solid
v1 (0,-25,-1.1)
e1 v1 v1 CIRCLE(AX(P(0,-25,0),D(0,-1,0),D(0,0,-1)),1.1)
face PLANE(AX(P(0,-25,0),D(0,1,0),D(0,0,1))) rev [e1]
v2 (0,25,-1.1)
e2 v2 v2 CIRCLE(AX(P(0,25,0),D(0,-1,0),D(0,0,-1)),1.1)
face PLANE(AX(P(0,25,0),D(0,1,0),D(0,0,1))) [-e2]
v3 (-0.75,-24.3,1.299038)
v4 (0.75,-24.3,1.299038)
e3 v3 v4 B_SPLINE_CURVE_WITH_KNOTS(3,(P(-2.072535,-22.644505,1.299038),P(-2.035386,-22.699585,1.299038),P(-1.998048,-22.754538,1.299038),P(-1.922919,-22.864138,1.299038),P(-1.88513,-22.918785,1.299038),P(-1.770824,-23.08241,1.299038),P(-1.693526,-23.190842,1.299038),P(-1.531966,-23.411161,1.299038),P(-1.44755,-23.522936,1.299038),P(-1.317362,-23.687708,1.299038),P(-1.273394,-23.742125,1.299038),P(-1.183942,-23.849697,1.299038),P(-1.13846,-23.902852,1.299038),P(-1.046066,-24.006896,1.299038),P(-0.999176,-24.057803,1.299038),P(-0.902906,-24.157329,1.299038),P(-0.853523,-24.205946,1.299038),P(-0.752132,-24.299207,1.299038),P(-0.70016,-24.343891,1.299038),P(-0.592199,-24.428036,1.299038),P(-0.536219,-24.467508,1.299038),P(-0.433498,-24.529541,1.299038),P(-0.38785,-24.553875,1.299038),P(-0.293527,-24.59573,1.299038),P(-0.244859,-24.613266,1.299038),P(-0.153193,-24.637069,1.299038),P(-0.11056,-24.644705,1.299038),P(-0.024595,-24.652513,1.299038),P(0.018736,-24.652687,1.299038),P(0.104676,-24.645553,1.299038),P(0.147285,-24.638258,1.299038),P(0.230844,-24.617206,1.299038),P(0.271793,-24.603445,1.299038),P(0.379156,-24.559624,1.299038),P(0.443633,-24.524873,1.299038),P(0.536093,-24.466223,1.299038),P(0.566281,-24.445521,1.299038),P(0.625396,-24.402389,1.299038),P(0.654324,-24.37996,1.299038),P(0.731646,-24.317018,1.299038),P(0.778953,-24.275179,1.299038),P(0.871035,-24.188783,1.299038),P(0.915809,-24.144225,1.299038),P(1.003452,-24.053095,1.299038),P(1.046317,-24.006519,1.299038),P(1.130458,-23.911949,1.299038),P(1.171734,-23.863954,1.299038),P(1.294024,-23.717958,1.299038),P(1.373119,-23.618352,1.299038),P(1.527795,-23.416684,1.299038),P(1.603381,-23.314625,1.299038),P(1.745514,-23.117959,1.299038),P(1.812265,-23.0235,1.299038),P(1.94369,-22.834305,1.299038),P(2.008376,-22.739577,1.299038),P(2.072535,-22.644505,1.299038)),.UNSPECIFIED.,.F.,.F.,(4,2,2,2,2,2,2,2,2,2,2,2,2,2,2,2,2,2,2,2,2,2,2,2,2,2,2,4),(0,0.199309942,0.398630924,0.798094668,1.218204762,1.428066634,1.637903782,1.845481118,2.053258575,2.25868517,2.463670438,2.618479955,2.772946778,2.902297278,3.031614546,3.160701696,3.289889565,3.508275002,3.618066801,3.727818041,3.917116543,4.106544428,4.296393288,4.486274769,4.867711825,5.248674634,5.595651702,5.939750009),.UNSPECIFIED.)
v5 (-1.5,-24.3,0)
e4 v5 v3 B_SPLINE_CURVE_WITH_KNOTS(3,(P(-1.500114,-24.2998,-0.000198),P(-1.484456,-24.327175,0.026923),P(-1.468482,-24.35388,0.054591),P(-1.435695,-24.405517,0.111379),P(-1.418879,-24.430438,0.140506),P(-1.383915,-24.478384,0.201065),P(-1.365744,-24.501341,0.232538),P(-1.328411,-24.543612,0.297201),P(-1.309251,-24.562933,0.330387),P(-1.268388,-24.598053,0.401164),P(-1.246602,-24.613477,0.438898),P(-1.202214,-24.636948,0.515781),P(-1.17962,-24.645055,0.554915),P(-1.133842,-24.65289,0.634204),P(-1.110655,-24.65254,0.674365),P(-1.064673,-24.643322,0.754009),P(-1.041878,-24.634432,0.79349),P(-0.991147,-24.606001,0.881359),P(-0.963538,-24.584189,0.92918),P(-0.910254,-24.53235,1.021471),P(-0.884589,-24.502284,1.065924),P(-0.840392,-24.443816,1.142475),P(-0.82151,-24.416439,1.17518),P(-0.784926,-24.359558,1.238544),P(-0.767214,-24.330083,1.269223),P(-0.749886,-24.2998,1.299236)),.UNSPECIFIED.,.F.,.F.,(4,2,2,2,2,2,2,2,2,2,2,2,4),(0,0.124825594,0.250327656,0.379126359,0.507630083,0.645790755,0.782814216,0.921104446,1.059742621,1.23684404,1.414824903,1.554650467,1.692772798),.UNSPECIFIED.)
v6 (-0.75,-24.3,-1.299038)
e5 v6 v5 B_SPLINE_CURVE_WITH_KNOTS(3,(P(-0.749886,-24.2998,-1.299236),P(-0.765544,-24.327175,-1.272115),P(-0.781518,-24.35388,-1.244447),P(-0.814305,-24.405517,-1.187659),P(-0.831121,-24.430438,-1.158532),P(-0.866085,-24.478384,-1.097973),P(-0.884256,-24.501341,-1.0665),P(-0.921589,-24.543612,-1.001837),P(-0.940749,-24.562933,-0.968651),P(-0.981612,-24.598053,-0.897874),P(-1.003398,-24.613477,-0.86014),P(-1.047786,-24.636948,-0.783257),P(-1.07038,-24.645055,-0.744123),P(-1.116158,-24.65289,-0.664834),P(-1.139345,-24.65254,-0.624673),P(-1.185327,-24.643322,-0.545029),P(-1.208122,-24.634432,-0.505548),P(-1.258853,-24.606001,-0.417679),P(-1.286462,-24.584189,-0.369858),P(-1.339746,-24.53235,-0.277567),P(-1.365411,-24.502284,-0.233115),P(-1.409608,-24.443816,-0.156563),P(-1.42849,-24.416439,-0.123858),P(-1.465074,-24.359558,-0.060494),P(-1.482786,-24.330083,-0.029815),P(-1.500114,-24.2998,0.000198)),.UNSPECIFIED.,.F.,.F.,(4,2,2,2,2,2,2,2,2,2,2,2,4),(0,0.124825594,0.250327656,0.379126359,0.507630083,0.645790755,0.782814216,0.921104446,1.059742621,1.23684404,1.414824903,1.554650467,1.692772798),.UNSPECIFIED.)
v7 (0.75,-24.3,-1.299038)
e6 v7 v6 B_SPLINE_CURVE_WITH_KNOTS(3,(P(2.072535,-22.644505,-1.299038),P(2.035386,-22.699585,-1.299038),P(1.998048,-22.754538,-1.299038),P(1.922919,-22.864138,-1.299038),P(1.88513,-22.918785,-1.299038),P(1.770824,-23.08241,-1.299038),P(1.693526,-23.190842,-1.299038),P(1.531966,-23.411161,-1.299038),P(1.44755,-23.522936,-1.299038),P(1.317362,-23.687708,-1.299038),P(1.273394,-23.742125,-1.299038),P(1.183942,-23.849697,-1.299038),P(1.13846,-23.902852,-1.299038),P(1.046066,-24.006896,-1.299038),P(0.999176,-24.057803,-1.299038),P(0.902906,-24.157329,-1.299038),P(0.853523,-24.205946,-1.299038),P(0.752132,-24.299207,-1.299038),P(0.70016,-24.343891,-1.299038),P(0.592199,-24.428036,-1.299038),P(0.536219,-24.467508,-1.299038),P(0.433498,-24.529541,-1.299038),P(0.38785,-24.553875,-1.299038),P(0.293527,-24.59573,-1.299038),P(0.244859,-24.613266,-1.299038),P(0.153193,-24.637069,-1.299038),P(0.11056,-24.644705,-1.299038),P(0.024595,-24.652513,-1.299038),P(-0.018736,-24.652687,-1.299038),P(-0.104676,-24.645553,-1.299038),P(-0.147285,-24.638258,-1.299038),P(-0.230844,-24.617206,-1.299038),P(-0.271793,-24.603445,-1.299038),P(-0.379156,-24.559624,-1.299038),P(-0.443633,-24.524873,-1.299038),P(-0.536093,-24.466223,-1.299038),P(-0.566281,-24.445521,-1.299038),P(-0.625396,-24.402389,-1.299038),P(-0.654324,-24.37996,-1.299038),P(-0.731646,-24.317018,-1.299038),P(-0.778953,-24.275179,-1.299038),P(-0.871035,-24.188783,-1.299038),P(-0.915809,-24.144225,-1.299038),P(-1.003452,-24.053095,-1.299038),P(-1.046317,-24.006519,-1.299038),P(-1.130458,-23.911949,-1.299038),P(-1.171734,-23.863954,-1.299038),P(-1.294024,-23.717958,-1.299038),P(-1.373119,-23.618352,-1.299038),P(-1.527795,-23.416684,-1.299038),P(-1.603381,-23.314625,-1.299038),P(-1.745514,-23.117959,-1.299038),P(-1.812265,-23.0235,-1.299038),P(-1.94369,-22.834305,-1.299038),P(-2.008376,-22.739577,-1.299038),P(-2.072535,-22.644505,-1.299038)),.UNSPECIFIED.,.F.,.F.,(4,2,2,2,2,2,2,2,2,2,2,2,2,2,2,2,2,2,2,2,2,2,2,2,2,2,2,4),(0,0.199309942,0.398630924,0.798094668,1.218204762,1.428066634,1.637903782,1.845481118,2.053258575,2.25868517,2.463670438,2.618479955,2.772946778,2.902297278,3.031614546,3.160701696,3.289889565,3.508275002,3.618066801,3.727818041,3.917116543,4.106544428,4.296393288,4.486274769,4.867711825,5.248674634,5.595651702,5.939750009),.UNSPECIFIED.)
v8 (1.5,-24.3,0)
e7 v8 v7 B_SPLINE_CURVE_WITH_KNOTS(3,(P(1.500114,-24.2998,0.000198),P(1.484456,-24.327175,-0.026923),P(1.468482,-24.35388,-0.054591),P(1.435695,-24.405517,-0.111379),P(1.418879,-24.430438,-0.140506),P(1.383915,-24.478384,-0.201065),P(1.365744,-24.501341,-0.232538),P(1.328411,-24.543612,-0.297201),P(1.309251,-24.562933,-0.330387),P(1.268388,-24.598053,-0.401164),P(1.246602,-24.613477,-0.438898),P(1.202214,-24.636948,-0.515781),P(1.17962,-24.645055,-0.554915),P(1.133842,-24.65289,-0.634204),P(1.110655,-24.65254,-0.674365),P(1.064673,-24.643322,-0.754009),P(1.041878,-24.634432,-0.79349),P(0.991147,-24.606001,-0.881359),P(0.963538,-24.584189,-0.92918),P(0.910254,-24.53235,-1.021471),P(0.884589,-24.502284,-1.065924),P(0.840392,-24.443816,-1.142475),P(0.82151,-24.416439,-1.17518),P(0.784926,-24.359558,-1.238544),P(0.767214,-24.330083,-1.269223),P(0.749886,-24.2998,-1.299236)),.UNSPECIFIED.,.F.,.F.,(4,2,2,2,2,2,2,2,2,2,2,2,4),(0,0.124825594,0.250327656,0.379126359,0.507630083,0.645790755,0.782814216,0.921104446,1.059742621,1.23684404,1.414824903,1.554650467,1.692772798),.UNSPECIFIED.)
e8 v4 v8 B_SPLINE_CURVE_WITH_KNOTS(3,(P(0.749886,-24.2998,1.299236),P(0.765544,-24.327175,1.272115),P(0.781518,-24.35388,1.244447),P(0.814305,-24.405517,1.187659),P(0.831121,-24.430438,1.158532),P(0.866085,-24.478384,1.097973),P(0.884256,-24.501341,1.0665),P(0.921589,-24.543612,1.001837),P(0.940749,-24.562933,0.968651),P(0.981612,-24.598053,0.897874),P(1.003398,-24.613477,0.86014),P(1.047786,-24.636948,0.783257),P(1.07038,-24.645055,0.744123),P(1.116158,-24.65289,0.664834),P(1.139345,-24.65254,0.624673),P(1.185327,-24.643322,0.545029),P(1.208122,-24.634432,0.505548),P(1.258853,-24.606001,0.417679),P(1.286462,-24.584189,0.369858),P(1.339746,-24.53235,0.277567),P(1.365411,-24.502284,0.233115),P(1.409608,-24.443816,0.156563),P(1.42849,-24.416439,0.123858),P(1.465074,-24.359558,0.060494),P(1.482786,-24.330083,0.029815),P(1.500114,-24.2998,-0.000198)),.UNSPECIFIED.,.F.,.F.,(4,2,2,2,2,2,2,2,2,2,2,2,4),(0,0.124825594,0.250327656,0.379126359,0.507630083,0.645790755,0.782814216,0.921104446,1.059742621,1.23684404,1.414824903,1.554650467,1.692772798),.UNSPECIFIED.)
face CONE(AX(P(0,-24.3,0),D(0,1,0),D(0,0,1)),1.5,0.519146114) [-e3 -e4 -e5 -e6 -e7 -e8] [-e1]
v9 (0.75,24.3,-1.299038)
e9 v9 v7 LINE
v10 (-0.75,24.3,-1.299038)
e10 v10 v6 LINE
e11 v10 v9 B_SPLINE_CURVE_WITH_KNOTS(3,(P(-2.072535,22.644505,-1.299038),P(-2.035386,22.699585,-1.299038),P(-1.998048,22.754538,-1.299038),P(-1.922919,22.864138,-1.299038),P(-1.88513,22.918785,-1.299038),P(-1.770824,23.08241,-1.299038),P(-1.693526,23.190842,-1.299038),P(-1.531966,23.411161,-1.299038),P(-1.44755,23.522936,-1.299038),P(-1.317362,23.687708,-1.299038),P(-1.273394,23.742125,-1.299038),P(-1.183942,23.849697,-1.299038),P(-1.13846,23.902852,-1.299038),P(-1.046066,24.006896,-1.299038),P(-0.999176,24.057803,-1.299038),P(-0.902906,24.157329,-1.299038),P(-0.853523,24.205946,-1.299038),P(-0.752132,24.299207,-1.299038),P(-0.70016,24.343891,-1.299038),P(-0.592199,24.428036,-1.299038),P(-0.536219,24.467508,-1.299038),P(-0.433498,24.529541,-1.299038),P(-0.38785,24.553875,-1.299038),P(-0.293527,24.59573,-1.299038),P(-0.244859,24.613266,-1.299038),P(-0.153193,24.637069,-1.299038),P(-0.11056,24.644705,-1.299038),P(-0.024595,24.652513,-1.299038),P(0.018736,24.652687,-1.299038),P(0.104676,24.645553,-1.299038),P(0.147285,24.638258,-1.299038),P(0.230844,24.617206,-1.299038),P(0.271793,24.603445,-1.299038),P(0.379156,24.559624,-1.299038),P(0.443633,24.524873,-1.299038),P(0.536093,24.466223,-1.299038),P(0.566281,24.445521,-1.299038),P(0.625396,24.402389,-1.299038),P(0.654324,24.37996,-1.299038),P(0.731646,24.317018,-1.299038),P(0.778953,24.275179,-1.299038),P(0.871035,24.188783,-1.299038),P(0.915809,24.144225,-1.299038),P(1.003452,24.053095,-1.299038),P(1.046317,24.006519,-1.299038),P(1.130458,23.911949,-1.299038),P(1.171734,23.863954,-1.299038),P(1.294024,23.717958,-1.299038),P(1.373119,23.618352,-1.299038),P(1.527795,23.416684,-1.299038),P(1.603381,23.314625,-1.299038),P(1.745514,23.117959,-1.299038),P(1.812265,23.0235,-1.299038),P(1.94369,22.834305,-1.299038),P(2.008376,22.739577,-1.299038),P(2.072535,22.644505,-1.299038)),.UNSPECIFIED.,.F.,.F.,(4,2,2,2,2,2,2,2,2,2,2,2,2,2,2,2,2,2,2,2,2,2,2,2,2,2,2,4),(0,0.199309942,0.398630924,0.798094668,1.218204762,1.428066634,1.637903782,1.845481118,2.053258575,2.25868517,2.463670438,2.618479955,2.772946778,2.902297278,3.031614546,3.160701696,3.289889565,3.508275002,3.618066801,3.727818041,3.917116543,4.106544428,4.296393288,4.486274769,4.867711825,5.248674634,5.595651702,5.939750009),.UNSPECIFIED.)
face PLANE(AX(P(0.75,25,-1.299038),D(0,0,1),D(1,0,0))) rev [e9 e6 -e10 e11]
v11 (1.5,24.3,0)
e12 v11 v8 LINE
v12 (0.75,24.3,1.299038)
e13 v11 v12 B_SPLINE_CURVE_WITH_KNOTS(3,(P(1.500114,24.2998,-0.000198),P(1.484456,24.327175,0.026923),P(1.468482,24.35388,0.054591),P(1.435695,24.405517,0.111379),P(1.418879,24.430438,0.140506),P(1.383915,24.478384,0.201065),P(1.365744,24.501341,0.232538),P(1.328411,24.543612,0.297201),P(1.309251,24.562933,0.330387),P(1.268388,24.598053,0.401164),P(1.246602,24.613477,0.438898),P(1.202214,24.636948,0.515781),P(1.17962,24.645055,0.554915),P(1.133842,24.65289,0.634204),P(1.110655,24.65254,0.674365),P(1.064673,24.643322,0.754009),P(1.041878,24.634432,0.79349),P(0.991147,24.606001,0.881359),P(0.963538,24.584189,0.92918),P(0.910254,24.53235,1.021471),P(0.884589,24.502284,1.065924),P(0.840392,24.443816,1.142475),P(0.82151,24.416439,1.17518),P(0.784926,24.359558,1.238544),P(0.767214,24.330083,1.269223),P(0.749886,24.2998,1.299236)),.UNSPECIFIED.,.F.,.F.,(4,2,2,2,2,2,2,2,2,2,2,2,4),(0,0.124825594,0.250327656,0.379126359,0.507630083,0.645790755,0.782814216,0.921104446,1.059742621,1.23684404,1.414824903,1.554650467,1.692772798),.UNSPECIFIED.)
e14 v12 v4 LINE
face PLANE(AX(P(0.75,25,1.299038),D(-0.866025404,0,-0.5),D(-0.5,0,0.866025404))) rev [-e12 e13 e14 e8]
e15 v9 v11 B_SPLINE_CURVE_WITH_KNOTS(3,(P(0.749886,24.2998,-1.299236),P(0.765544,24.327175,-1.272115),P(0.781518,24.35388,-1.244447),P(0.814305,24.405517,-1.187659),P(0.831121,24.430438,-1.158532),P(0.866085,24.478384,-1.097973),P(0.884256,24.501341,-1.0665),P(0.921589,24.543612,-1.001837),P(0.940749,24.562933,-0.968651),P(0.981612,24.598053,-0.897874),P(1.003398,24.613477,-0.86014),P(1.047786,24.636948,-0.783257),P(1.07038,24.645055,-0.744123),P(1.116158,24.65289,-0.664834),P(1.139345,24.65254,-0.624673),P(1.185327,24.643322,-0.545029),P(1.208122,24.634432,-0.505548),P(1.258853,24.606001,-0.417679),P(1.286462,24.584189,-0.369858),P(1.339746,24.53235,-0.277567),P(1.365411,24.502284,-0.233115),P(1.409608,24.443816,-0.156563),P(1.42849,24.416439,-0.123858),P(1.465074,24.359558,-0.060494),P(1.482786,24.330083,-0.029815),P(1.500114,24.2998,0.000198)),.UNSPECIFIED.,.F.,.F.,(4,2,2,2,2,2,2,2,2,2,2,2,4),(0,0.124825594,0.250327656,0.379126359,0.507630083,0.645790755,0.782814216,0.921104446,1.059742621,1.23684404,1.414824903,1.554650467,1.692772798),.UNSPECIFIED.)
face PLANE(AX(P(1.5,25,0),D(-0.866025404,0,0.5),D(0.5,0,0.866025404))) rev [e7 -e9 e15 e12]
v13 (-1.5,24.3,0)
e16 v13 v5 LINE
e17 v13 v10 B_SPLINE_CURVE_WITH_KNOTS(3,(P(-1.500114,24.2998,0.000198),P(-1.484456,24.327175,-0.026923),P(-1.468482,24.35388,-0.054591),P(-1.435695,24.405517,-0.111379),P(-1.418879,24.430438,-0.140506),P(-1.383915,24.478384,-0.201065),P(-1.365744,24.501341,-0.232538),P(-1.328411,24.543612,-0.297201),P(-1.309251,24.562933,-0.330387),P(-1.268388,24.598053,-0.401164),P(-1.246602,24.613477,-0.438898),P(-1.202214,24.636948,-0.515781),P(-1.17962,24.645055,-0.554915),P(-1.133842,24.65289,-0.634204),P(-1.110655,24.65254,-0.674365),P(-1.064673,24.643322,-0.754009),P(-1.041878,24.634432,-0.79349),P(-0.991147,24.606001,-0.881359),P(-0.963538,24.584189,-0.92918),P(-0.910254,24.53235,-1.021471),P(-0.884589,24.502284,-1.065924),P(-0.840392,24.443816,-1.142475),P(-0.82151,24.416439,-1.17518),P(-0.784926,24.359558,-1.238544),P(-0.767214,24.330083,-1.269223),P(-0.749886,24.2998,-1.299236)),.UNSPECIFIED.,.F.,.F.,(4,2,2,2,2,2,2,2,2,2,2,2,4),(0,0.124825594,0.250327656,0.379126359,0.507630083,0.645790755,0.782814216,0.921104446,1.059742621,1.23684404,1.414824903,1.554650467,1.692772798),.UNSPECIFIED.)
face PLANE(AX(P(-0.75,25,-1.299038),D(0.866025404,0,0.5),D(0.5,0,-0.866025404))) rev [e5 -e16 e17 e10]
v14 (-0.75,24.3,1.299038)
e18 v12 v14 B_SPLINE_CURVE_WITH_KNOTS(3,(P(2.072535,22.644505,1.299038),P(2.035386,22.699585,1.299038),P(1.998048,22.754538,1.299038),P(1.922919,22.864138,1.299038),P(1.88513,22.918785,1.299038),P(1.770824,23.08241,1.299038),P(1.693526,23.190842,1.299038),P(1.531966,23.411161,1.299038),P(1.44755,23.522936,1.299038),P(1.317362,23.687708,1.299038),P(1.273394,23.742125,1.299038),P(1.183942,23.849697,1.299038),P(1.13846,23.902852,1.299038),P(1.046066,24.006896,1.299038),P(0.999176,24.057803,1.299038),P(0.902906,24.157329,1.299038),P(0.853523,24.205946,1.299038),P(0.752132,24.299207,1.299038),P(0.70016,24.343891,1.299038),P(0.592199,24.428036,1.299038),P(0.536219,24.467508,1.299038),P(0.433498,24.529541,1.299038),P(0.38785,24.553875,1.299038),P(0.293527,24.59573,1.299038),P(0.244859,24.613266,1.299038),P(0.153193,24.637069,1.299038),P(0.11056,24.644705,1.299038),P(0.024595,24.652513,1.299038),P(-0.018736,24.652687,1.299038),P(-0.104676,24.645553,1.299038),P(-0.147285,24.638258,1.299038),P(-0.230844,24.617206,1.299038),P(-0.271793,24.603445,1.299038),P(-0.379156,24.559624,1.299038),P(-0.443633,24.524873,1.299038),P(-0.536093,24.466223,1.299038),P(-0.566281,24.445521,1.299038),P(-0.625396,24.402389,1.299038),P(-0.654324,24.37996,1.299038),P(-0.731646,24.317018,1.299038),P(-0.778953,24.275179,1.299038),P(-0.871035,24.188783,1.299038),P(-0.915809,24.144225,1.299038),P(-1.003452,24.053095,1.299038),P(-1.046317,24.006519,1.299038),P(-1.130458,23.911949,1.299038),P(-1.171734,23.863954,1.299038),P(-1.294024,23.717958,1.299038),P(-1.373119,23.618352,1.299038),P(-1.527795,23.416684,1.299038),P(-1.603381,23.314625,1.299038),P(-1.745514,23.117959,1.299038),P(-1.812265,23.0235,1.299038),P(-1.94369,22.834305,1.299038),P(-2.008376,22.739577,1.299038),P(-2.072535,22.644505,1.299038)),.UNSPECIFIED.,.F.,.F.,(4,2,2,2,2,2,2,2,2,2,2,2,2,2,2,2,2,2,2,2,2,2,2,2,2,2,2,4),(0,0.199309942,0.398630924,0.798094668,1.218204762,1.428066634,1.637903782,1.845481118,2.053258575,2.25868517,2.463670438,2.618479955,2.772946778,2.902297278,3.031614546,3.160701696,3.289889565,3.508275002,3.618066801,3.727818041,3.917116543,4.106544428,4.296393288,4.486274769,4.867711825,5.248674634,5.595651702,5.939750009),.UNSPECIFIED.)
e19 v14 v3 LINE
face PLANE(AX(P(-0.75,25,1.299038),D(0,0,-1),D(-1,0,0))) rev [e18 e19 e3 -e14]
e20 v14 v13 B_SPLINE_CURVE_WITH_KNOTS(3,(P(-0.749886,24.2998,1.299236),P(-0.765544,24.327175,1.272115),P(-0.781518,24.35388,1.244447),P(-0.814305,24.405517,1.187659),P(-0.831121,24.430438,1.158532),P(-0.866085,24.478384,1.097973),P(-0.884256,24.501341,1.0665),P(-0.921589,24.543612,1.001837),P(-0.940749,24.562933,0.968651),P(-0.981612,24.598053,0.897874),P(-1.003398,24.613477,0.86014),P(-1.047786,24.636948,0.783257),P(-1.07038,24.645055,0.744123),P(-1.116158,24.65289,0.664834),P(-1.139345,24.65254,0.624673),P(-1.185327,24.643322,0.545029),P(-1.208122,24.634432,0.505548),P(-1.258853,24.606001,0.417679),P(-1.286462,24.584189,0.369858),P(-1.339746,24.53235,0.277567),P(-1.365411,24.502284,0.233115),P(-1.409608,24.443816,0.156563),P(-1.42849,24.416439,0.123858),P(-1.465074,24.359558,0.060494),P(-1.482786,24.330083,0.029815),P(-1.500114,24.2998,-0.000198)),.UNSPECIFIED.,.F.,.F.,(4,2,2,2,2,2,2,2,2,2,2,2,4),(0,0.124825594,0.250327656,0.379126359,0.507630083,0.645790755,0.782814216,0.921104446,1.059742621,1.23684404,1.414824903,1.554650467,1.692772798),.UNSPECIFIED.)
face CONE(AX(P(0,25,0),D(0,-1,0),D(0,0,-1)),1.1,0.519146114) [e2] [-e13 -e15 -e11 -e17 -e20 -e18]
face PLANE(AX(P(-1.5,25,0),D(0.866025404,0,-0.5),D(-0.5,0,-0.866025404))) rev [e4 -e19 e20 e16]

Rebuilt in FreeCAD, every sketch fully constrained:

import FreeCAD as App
import Part
import Sketcher
Q = App.Units.Quantity

doc = App.newDocument("Part")
params = doc.addObject("Spreadsheet::Sheet", "Params")
for row, (alias, value) in enumerate([
    ("sketch1_width", "1.5 mm"),
    ("pad1_length", "50 mm"),
    ("sketch2_width", "0.4 mm"),
    ("sketch2_height", "0.7 mm"),
    ("groove_angle", "360 deg"),
], start=1):
    params.set(f"A{row}", alias)
    params.set(f"B{row}", "=" + value)
    params.setAlias(f"B{row}", alias)

body = doc.addObject("PartDesign::Body", "Body")

sketch1 = doc.addObject("Sketcher::SketchObject", "Sketch")
body.addObject(sketch1)
sketch1.AttachmentSupport = (doc.XZ_Plane, [""])
sketch1.MapMode = "FlatFace"
sketch1.addGeometry(Part.LineSegment(App.Vector(1.5, 0, 0), App.Vector(0.8, -1.3, 0)), False)
sketch1.addGeometry(Part.LineSegment(App.Vector(0.8, -1.3, 0), App.Vector(-0.8, -1.3, 0)), False)
sketch1.addGeometry(Part.LineSegment(App.Vector(-0.8, -1.3, 0), App.Vector(-1.5, 0, 0)), False)
sketch1.addGeometry(Part.LineSegment(App.Vector(-1.5, 0, 0), App.Vector(-0.8, 1.3, 0)), False)
sketch1.addGeometry(Part.LineSegment(App.Vector(-0.8, 1.3, 0), App.Vector(0.8, 1.3, 0)), False)
sketch1.addGeometry(Part.LineSegment(App.Vector(0.8, 1.3, 0), App.Vector(1.5, 0, 0)), False)
sketch1.addConstraint(Sketcher.Constraint("Coincident", 0, 2, 1, 1))
sketch1.addConstraint(Sketcher.Constraint("Coincident", 1, 2, 2, 1))
sketch1.addConstraint(Sketcher.Constraint("Coincident", 2, 2, 3, 1))
sketch1.addConstraint(Sketcher.Constraint("Coincident", 3, 2, 4, 1))
sketch1.addConstraint(Sketcher.Constraint("Coincident", 4, 2, 5, 1))
sketch1.addConstraint(Sketcher.Constraint("Coincident", 5, 2, 0, 1))
sketch1.addConstraint(Sketcher.Constraint("Horizontal", 1))
sketch1.addConstraint(Sketcher.Constraint("Horizontal", 4))
sketch1.addConstraint(Sketcher.Constraint("Symmetric", 0, 2, 3, 2, -1, 1))
sketch1.addConstraint(Sketcher.Constraint("Symmetric", 2, 2, 5, 2, -1, 1))
sketch1.addConstraint(Sketcher.Constraint("PointOnObject", 2, 2, -1))
sketch1.addConstraint(Sketcher.Constraint("Parallel", 2, 5))
sketch1.addConstraint(Sketcher.Constraint("Vertical", 1, 2, 3, 2))
sketch1.addConstraint(Sketcher.Constraint("Angle", 0, Q("-120 deg")))
sketch1.addConstraint(Sketcher.Constraint("DistanceX", 1, 2, 1, 1, 1.5))
sketch1.addConstraint(Sketcher.Constraint("DistanceX", 2, 2, 5, 2, 3.0))
sketch1.setExpression("Constraints[14]", "Params.sketch1_width")
pad1 = doc.addObject("PartDesign::Pad", "Pad")
body.addObject(pad1)
pad1.Profile = sketch1
pad1.setExpression("Length", "Params.pad1_length")
pad1.Midplane = True

sketch2 = doc.addObject("Sketcher::SketchObject", "Sketch001")
body.addObject(sketch2)
sketch2.AttachmentSupport = (doc.XY_Plane, [""])
sketch2.MapMode = "FlatFace"
sketch2.addGeometry(Part.LineSegment(App.Vector(1.5, 24.3, 0), App.Vector(1.5, 25, 0)), False)
sketch2.addGeometry(Part.LineSegment(App.Vector(1.5, 25, 0), App.Vector(1.1, 25, 0)), False)
sketch2.addGeometry(Part.LineSegment(App.Vector(1.1, 25, 0), App.Vector(1.5, 24.3, 0)), False)
sketch2.addGeometry(Part.LineSegment(App.Vector(1.5, -25, 0), App.Vector(1.5, -24.3, 0)), False)
sketch2.addGeometry(Part.LineSegment(App.Vector(1.5, -24.3, 0), App.Vector(1.1, -25, 0)), False)
sketch2.addGeometry(Part.LineSegment(App.Vector(1.1, -25, 0), App.Vector(1.5, -25, 0)), False)
sketch2.addConstraint(Sketcher.Constraint("Coincident", 0, 2, 1, 1))
sketch2.addConstraint(Sketcher.Constraint("Coincident", 1, 2, 2, 1))
sketch2.addConstraint(Sketcher.Constraint("Coincident", 2, 2, 0, 1))
sketch2.addConstraint(Sketcher.Constraint("Coincident", 3, 2, 4, 1))
sketch2.addConstraint(Sketcher.Constraint("Coincident", 4, 2, 5, 1))
sketch2.addConstraint(Sketcher.Constraint("Coincident", 5, 2, 3, 1))
sketch2.addConstraint(Sketcher.Constraint("Vertical", 0))
sketch2.addConstraint(Sketcher.Constraint("Horizontal", 1))
sketch2.addConstraint(Sketcher.Constraint("Vertical", 3))
sketch2.addConstraint(Sketcher.Constraint("Horizontal", 5))
sketch2.addConstraint(Sketcher.Constraint("Symmetric", 2, 2, 3, 2, -1))
sketch2.addConstraint(Sketcher.Constraint("Symmetric", 1, 2, 4, 2, -1))
sketch2.addConstraint(Sketcher.Constraint("DistanceX", 1, 2, 1, 1, 0.4))
sketch2.addConstraint(Sketcher.Constraint("DistanceY", 0, 1, 0, 2, 0.7))
sketch2.addConstraint(Sketcher.Constraint("DistanceY", -1, 1, 0, 2, 25.0))
sketch2.addConstraint(Sketcher.Constraint("DistanceX", -1, 1, 0, 2, 1.5))
sketch2.setExpression("Constraints[12]", "Params.sketch2_width")
sketch2.setExpression("Constraints[13]", "Params.sketch2_height")
groove = doc.addObject("PartDesign::Groove", "Groove")
body.addObject(groove)
groove.Profile = sketch2
groove.ReferenceAxis = (sketch2, ["V_Axis"])
groove.setExpression("Angle", "Params.groove_angle")

doc.recompute()
